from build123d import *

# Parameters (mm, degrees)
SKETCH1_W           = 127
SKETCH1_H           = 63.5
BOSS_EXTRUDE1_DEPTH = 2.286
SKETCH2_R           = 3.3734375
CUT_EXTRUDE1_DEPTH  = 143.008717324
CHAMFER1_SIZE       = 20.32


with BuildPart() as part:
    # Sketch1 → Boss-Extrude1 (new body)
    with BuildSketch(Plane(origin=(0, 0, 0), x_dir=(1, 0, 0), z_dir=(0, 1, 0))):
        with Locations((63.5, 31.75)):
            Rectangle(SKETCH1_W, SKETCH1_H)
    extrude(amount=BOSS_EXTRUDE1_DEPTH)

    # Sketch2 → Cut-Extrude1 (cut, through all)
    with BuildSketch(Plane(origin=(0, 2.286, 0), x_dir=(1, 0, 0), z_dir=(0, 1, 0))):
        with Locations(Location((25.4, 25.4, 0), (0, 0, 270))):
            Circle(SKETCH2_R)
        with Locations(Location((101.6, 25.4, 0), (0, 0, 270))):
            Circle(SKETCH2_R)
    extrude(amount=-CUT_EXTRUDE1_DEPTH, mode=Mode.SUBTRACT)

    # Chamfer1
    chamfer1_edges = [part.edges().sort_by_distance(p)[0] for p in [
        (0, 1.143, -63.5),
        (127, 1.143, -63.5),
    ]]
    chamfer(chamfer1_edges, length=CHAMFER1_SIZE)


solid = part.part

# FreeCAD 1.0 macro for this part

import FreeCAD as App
import Part
import Sketcher
from FreeCAD import Vector
Q = App.Units.Quantity


def edges_at(feature, points):
    """Names of the edges that pass closest to the given points."""
    edges = feature.Shape.Edges
    near = lambda p: min(range(len(edges)), key=lambda i: edges[i].distToShape(Part.Vertex(*p))[0])
    return sorted({f"Edge{near(p) + 1}" for p in points})

doc = App.newDocument("Part")
body = doc.addObject("PartDesign::Body", "Body")

# Sketch on XZ plane
sketch1 = doc.addObject("Sketcher::SketchObject", "Sketch")
body.addObject(sketch1)
sketch1.AttachmentSupport = (doc.XZ_Plane, [""])
sketch1.MapMode = "FlatFace"
sketch1.addGeometry([
    Part.LineSegment(Vector(0, -63.5, 0), Vector(0, 0, 0)),
    Part.LineSegment(Vector(0, 0, 0), Vector(127, 0, 0)),
    Part.LineSegment(Vector(127, 0, 0), Vector(127, -63.5, 0)),
    Part.LineSegment(Vector(127, -63.5, 0), Vector(0, -63.5, 0)),
], False)
sketch1.addConstraint([
    Sketcher.Constraint("Coincident", 0, 2, 1, 1),
    Sketcher.Constraint("Coincident", 1, 2, 2, 1),
    Sketcher.Constraint("Coincident", 2, 2, 3, 1),
    Sketcher.Constraint("Coincident", 3, 2, 0, 1),
    Sketcher.Constraint("Vertical", 0),
    Sketcher.Constraint("Horizontal", 1),
    Sketcher.Constraint("Vertical", 2),
    Sketcher.Constraint("Horizontal", 3),
    Sketcher.Constraint("Coincident", 0, 2, -1, 1),
    Sketcher.Constraint("DistanceX", 1, 1, 1, 2, Q("5 in")),
    Sketcher.Constraint("DistanceY", 0, 1, 0, 2, Q("2.5 in")),
])
pad1 = doc.addObject("PartDesign::Pad", "Pad")
body.addObject(pad1)
pad1.Profile = sketch1
pad1.Length = Q("0.09 in")
pad1.Reversed = True

# Sketch on XZ plane
sketch2 = doc.addObject("Sketcher::SketchObject", "Sketch001")
body.addObject(sketch2)
sketch2.AttachmentSupport = (doc.XZ_Plane, [""])
sketch2.MapMode = "FlatFace"
sketch2.AttachmentOffset = App.Placement(Vector(0, 0, -0.09 * 25.4), App.Rotation())
sketch2.addGeometry([
    Part.Circle(Vector(25.4, -25.4, 0), Vector(0, 0, 1), 3.373438),
    Part.Circle(Vector(101.6, -25.4, 0), Vector(0, 0, 1), 3.373438),
], False)
sketch2.addConstraint([
    Sketcher.Constraint("Equal", 0, 1),
    Sketcher.Constraint("Horizontal", 0, 3, 1, 3),
    Sketcher.Constraint("Diameter", 0, Q("0.265625 in")),
    Sketcher.Constraint("DistanceX", -1, 1, 0, 3, Q("1 in")),
    Sketcher.Constraint("DistanceY", 0, 3, -1, 1, Q("1 in")),
    Sketcher.Constraint("DistanceX", -1, 1, 1, 3, Q("4 in")),
])
pocket1 = doc.addObject("PartDesign::Pocket", "Pocket")
body.addObject(pocket1)
pocket1.Profile = sketch2
pocket1.Type = "ThroughAll"
pocket1.Reversed = True
doc.recompute()

chamfer = doc.addObject("PartDesign::Chamfer", "Chamfer")
body.addObject(chamfer)
chamfer.Base = (pocket1, edges_at(pocket1, [(0, 1.143, -63.5), (127, 1.143, -63.5)]))
chamfer.Size = Q("0.8 in")

doc.recompute()
